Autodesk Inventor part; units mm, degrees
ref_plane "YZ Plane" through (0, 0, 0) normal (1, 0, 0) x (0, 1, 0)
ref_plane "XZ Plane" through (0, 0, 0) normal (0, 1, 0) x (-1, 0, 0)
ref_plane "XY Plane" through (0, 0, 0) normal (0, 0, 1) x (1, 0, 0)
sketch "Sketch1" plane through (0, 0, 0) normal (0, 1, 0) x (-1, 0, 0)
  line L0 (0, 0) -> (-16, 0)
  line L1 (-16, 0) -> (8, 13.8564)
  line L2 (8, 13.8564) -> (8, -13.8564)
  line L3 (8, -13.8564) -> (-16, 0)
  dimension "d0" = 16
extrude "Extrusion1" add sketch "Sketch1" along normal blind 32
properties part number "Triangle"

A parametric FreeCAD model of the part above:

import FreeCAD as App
import Part
import Sketcher
from FreeCAD import Vector
Q = App.Units.Quantity


def add_polygon(sketch, points):
    """Adds a closed chain of lines whose ends are joined by coincident constraints."""
    first, n = sketch.GeometryCount, len(points)
    for a, b in zip(points, points[1:] + points[:1]):
        sketch.addGeometry(Part.LineSegment(App.Vector(*a, 0), App.Vector(*b, 0)), False)
    for i in range(n):
        sketch.addConstraint(Sketcher.Constraint("Coincident", first + i, 2, first + (i + 1) % n, 1))

doc = App.newDocument("Part")
params = doc.addObject("Spreadsheet::Sheet", "Params")
for row, (alias, value) in enumerate([
    ("pad1_length", "32 mm"),
], start=1):
    params.set(f"A{row}", alias)
    params.set(f"B{row}", "=" + value)
    params.setAlias(f"B{row}", alias)

body = doc.addObject("PartDesign::Body", "Body")

# Sketch on XZ plane
sketch1 = body.newObject("Sketcher::SketchObject", "Sketch")
sketch1.AttachmentSupport = (doc.getObject("XZ_Plane"), [""])
sketch1.MapMode = "FlatFace"
add_polygon(sketch1, [(-8, 13.8564), (16, 0), (-8, -13.8564)])  # lines 0-2
sketch1.addConstraint([
    Sketcher.Constraint("Vertical", 2),
    Sketcher.Constraint("PointOnObject", 0, 2, -1),
    Sketcher.Constraint("Equal", 0, 1),
    Sketcher.Constraint("DistanceX", -1, 1, 0, 2, Q("16 mm")),
    Sketcher.Constraint("Angle", 0, Q("-30 deg")),
    Sketcher.Constraint("DistanceX", 1, 2, -1, 1, Q("8 mm")),
])
pad1 = body.newObject("PartDesign::Pad", "Pad")
pad1.Profile = sketch1
pad1.setExpression("Length", "Params.pad1_length")
pad1.Reversed = True

doc.recompute()
